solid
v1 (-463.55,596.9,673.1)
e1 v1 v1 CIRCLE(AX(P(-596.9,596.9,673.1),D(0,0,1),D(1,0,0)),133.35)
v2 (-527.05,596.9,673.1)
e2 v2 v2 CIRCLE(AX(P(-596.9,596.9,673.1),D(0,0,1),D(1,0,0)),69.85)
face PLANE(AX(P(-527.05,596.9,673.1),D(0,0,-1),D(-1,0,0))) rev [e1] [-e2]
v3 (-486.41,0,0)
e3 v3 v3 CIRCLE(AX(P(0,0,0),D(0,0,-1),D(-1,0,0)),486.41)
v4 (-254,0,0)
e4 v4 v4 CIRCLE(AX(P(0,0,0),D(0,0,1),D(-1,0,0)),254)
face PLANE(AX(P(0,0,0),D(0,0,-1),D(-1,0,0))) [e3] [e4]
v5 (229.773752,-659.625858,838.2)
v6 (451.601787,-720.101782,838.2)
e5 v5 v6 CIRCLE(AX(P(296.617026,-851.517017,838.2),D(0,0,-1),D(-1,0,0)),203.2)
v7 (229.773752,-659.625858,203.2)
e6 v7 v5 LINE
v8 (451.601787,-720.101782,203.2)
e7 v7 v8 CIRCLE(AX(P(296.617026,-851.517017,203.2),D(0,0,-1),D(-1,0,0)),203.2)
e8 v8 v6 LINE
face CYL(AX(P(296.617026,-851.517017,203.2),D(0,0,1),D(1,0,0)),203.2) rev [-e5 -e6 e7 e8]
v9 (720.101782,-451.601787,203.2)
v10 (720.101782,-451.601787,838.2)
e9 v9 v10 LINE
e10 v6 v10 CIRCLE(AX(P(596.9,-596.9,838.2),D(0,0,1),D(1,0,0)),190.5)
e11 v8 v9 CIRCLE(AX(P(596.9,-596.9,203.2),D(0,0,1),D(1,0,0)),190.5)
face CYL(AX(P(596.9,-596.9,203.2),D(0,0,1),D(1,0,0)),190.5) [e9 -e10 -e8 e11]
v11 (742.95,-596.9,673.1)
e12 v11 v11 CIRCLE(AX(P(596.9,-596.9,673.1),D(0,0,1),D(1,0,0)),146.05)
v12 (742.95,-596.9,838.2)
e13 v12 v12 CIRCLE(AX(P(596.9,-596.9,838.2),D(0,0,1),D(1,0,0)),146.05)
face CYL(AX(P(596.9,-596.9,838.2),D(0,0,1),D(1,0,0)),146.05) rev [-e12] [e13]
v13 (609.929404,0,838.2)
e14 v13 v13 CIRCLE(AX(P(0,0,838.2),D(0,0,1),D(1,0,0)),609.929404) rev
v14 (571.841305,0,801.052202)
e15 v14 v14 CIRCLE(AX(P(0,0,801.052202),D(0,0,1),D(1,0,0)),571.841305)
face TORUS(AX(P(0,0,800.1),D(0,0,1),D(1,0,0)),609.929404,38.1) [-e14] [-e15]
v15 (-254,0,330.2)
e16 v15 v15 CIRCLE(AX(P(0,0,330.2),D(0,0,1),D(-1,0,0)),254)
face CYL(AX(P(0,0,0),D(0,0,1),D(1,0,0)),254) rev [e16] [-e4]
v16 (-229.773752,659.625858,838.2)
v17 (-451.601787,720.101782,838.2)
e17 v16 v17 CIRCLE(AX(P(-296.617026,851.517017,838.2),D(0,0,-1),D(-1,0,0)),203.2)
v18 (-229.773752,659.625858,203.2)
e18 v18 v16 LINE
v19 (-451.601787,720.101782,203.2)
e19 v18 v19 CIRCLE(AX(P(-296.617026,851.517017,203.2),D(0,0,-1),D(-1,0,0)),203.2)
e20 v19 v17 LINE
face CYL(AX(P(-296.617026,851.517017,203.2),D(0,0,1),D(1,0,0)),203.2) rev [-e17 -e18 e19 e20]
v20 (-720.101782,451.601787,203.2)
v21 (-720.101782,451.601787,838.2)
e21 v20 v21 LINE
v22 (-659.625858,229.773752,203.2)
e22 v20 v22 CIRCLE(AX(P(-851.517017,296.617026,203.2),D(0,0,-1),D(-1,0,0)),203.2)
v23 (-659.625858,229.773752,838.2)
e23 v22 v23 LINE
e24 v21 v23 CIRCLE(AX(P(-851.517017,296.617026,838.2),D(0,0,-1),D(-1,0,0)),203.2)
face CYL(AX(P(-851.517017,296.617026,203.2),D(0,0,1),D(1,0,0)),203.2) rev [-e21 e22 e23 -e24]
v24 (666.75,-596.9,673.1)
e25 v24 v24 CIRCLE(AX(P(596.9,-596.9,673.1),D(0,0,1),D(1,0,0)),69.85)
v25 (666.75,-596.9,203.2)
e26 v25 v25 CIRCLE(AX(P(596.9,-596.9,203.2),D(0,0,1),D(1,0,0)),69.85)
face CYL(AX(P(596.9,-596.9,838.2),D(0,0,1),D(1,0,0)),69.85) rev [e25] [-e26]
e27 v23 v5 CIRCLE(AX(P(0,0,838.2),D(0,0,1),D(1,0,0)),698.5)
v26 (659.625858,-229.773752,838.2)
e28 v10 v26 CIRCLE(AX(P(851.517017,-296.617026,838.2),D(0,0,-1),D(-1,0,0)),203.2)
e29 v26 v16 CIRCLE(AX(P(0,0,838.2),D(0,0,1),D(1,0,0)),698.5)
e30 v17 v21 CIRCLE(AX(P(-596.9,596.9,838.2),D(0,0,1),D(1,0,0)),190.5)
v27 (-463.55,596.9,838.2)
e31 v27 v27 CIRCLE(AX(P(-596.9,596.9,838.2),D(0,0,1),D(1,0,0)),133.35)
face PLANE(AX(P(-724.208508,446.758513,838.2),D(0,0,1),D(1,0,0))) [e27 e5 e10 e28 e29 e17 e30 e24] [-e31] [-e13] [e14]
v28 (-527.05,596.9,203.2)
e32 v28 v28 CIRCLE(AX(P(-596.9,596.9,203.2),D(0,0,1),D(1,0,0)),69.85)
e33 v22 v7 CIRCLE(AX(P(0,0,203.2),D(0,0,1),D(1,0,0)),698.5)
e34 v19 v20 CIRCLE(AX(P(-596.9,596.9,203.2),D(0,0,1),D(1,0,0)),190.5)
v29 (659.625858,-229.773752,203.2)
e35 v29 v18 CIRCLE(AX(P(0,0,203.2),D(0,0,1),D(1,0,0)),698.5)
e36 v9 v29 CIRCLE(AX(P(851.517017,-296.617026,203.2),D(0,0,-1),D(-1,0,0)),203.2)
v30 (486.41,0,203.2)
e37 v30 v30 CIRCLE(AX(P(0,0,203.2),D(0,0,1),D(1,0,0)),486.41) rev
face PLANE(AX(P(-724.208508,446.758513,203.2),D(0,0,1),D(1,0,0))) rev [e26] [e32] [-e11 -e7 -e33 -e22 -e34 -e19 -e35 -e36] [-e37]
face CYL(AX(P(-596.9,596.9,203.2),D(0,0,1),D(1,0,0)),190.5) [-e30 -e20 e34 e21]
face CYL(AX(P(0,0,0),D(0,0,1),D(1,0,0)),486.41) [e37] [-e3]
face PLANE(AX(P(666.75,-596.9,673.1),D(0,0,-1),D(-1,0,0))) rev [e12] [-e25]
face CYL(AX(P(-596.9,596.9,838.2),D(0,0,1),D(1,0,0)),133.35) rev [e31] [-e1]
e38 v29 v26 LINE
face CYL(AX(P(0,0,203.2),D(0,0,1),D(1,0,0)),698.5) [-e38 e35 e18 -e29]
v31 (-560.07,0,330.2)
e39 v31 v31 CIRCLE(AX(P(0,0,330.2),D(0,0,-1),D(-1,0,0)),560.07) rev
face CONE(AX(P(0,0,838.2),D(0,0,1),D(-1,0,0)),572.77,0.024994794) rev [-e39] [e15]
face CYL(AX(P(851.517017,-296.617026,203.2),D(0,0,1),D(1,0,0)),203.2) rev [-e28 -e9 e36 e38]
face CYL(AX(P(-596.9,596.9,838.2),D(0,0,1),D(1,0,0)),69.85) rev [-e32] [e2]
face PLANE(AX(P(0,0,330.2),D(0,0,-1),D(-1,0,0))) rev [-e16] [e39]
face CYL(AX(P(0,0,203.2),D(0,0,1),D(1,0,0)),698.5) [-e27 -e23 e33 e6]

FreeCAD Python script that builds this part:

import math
import FreeCAD as App
import Part
import Sketcher

V = App.Vector
Q = App.Units.Quantity


def edges_at(feature, points):
    """Names of the edges that pass closest to the given points."""
    edges = feature.Shape.Edges
    near = lambda p: min(range(len(edges)), key=lambda i: edges[i].distToShape(Part.Vertex(*p))[0])
    return sorted({f"Edge{near(p) + 1}" for p in points})

doc = App.newDocument("Part")
params = doc.addObject("Spreadsheet::Sheet", "Params")
for row, (alias, value) in enumerate([
    ("sketch1_radius", "8 in"),
    ("sketch1_radius2", "27.5 in"),
    ("sketch1_radius3", "7.5 in"),
    ("pad1_length", "25 in"),
    ("sketch2_diameter", "38.3 in"),
    ("pad2_length", "8 in"),
    ("sketch3_diameter", "45.1 in"),
    ("pocket1_length", "20 in"),
    ("pocket1_taper", "-1.432096 deg"),
    ("sketch4_diameter", "20 in"),
    ("sketch5_diameter", "5.5 in"),
    ("hole_diameter", "5.5 in"),
    ("hole_depth", "33 in"),
    ("hole_cbore_diameter", "10.5 in"),
    ("hole_cbore_depth", "6.5 in"),
    ("sketch6_diameter", "5.5 in"),
    ("hole2_diameter", "5.5 in"),
    ("hole2_depth", "33 in"),
    ("hole2_cbore_diameter", "11.5 in"),
    ("hole2_cbore_depth", "6.5 in"),
    ("fillet_radius", "1.5 in"),
], start=1):
    params.set(f"A{row}", alias)
    params.set(f"B{row}", "=" + value)
    params.setAlias(f"B{row}", alias)

body = doc.addObject("PartDesign::Body", "Body")

# Sketch on XY plane
sketch1 = body.newObject("Sketcher::SketchObject", "Sketch")
sketch1.AttachmentSupport = (doc.getObject("XY_Plane"), [""])
sketch1.MapMode = "FlatFace"
sketch1.AttachmentOffset = App.Placement(V(0, 0, 33 * 25.4), App.Rotation())
sketch1.addGeometry([
    Part.ArcOfCircle(Part.Circle(V(-851.517017, 296.617026, 0), V(0, 0, 1), 203.2), math.radians(-19.205246), math.radians(49.704602)),  # 0
    Part.ArcOfCircle(Part.Circle(V(0, 0, 0), V(0, 0, 1), 698.5), math.radians(160.794754), math.radians(289.205246)),  # 1
    Part.ArcOfCircle(Part.Circle(V(296.617026, -851.517017, 0), V(0, 0, 1), 203.2), math.radians(40.295398), math.radians(109.205246)),  # 2
    Part.ArcOfCircle(Part.Circle(V(596.9, -596.9, 0), V(0, 0, 1), 190.5), math.radians(-139.704602), math.radians(49.704602)),  # 3
    Part.ArcOfCircle(Part.Circle(V(851.517017, -296.617026, 0), V(0, 0, 1), 203.2), math.radians(160.794754), math.radians(229.704602)),  # 4
    Part.ArcOfCircle(Part.Circle(V(0, 0, 0), V(0, 0, 1), 698.5), math.radians(-19.205246), math.radians(109.205246)),  # 5
    Part.ArcOfCircle(Part.Circle(V(-296.617026, 851.517017, 0), V(0, 0, 1), 203.2), math.radians(-139.704602), math.radians(-70.794754)),  # 6
    Part.ArcOfCircle(Part.Circle(V(-596.9, 596.9, 0), V(0, 0, 1), 190.5), math.radians(40.295398), math.radians(229.704602)),  # 7
], False)
sketch1.addConstraint([
    Sketcher.Constraint("Tangent", 0, 1, 1, 1),
    Sketcher.Constraint("Tangent", 1, 2, 2, 2),
    Sketcher.Constraint("Tangent", 2, 1, 3, 1),
    Sketcher.Constraint("Tangent", 3, 2, 4, 2),
    Sketcher.Constraint("Tangent", 4, 1, 5, 1),
    Sketcher.Constraint("Tangent", 5, 2, 6, 2),
    Sketcher.Constraint("Tangent", 6, 1, 7, 1),
    Sketcher.Constraint("Tangent", 7, 2, 0, 2),
    Sketcher.Constraint("Coincident", 1, 3, -1, 1),
    Sketcher.Constraint("Coincident", 5, 3, -1, 1),
    Sketcher.Constraint("Equal", 0, 2),
    Sketcher.Constraint("Equal", 2, 4),
    Sketcher.Constraint("Equal", 1, 5),
    Sketcher.Constraint("Equal", 4, 6),
    Sketcher.Constraint("Equal", 3, 7),
    Sketcher.Constraint("Symmetric", 3, 3, 7, 3, -1, 1),
    Sketcher.Constraint("Radius", 0, Q("8 in")),
    Sketcher.Constraint("Radius", 1, Q("27.5 in")),
    Sketcher.Constraint("Radius", 3, Q("7.5 in")),
    Sketcher.Constraint("DistanceX", 7, 3, 3, 3, Q("47 in")),
    Sketcher.Constraint("DistanceY", 3, 3, 7, 3, Q("47 in")),
])
sketch1.setExpression("Constraints[16]", "Params.sketch1_radius")
sketch1.setExpression("Constraints[17]", "Params.sketch1_radius2")
sketch1.setExpression("Constraints[18]", "Params.sketch1_radius3")
pad1 = body.newObject("PartDesign::Pad", "Pad")
pad1.Profile = sketch1
pad1.setExpression("Length", "Params.pad1_length")
pad1.Reversed = True

# Sketch on XY plane
sketch2 = body.newObject("Sketcher::SketchObject", "Sketch001")
sketch2.AttachmentSupport = (doc.getObject("XY_Plane"), [""])
sketch2.MapMode = "FlatFace"
sketch2.AttachmentOffset = App.Placement(V(0, 0, 8 * 25.4), App.Rotation())
sketch2.addGeometry(Part.Circle(V(0, 0, 0), V(0, 0, 1), 486.41), False)
sketch2.addConstraint([
    Sketcher.Constraint("Coincident", 0, 3, -1, 1),
    Sketcher.Constraint("Diameter", 0, Q("38.3 in")),
])
sketch2.setExpression("Constraints[1]", "Params.sketch2_diameter")
pad2 = body.newObject("PartDesign::Pad", "Pad001")
pad2.Profile = sketch2
pad2.setExpression("Length", "Params.pad2_length")
pad2.Reversed = True

# Sketch on XY plane
sketch3 = body.newObject("Sketcher::SketchObject", "Sketch002")
sketch3.AttachmentSupport = (doc.getObject("XY_Plane"), [""])
sketch3.MapMode = "FlatFace"
sketch3.AttachmentOffset = App.Placement(V(0, 0, 33 * 25.4), App.Rotation())
sketch3.addGeometry(Part.Circle(V(0, 0, 0), V(0, 0, 1), 572.77), False)
sketch3.addConstraint([
    Sketcher.Constraint("Coincident", 0, 3, -1, 1),
    Sketcher.Constraint("Diameter", 0, Q("45.1 in")),
])
sketch3.setExpression("Constraints[1]", "Params.sketch3_diameter")
pocket1 = body.newObject("PartDesign::Pocket", "Pocket")
pocket1.Profile = sketch3
pocket1.setExpression("Length", "Params.pocket1_length")
pocket1.setExpression("TaperAngle", "Params.pocket1_taper")

# Sketch on XY plane
sketch4 = body.newObject("Sketcher::SketchObject", "Sketch003")
sketch4.AttachmentSupport = (doc.getObject("XY_Plane"), [""])
sketch4.MapMode = "FlatFace"
sketch4.AttachmentOffset = App.Placement(V(0, 0, 13 * 25.4), App.Rotation())
sketch4.addGeometry(Part.Circle(V(0, 0, 0), V(0, 0, 1), 254), False)
sketch4.addConstraint([
    Sketcher.Constraint("Coincident", 0, 3, -1, 1),
    Sketcher.Constraint("Diameter", 0, Q("20 in")),
])
sketch4.setExpression("Constraints[1]", "Params.sketch4_diameter")
pocket2 = body.newObject("PartDesign::Pocket", "Pocket001")
pocket2.Profile = sketch4
pocket2.Type = "ThroughAll"

# Sketch on XY plane
sketch5 = body.newObject("Sketcher::SketchObject", "Sketch004")
sketch5.AttachmentSupport = (doc.getObject("XY_Plane"), [""])
sketch5.MapMode = "FlatFace"
sketch5.AttachmentOffset = App.Placement(V(0, 0, 33 * 25.4), App.Rotation())
sketch5.addGeometry(Part.Circle(V(-596.9, 596.9, 0), V(0, 0, 1), 69.85), False)
sketch5.addConstraint([
    Sketcher.Constraint("Diameter", 0, Q("5.5 in")),
    Sketcher.Constraint("DistanceX", 0, 3, -1, 1, Q("23.5 in")),
    Sketcher.Constraint("DistanceY", -1, 1, 0, 3, Q("23.5 in")),
])
sketch5.setExpression("Constraints[0]", "Params.sketch5_diameter")
doc.recompute()
hole = body.newObject("PartDesign::Hole", "Hole")
hole.Profile = sketch5
hole.ThreadType = "None"
hole.setExpression("Diameter", "Params.hole_diameter")
hole.DepthType = "Dimension"
hole.setExpression("Depth", "Params.hole_depth")
hole.DrillPoint = "Flat"
hole.HoleCutType = "Counterbore"
hole.setExpression("HoleCutDiameter", "Params.hole_cbore_diameter")
hole.setExpression("HoleCutDepth", "Params.hole_cbore_depth")

# Sketch on XY plane
sketch6 = body.newObject("Sketcher::SketchObject", "Sketch005")
sketch6.AttachmentSupport = (doc.getObject("XY_Plane"), [""])
sketch6.MapMode = "FlatFace"
sketch6.AttachmentOffset = App.Placement(V(0, 0, 33 * 25.4), App.Rotation())
sketch6.addGeometry(Part.Circle(V(596.9, -596.9, 0), V(0, 0, 1), 69.85), False)
sketch6.addConstraint([
    Sketcher.Constraint("Diameter", 0, Q("5.5 in")),
    Sketcher.Constraint("DistanceX", -1, 1, 0, 3, Q("23.5 in")),
    Sketcher.Constraint("DistanceY", 0, 3, -1, 1, Q("23.5 in")),
])
sketch6.setExpression("Constraints[0]", "Params.sketch6_diameter")
doc.recompute()
hole2 = body.newObject("PartDesign::Hole", "Hole001")
hole2.Profile = sketch6
hole2.ThreadType = "None"
hole2.setExpression("Diameter", "Params.hole2_diameter")
hole2.DepthType = "Dimension"
hole2.setExpression("Depth", "Params.hole2_depth")
hole2.DrillPoint = "Flat"
hole2.HoleCutType = "Counterbore"
hole2.setExpression("HoleCutDiameter", "Params.hole2_cbore_diameter")
hole2.setExpression("HoleCutDepth", "Params.hole2_cbore_depth")
doc.recompute()

fillet = body.newObject("PartDesign::Fillet", "Fillet")
fillet.Base = (hole2, edges_at(hole2, [(-572.77, 0, 838.2)]))
fillet.setExpression("Radius", "Params.fillet_radius")

doc.recompute()
